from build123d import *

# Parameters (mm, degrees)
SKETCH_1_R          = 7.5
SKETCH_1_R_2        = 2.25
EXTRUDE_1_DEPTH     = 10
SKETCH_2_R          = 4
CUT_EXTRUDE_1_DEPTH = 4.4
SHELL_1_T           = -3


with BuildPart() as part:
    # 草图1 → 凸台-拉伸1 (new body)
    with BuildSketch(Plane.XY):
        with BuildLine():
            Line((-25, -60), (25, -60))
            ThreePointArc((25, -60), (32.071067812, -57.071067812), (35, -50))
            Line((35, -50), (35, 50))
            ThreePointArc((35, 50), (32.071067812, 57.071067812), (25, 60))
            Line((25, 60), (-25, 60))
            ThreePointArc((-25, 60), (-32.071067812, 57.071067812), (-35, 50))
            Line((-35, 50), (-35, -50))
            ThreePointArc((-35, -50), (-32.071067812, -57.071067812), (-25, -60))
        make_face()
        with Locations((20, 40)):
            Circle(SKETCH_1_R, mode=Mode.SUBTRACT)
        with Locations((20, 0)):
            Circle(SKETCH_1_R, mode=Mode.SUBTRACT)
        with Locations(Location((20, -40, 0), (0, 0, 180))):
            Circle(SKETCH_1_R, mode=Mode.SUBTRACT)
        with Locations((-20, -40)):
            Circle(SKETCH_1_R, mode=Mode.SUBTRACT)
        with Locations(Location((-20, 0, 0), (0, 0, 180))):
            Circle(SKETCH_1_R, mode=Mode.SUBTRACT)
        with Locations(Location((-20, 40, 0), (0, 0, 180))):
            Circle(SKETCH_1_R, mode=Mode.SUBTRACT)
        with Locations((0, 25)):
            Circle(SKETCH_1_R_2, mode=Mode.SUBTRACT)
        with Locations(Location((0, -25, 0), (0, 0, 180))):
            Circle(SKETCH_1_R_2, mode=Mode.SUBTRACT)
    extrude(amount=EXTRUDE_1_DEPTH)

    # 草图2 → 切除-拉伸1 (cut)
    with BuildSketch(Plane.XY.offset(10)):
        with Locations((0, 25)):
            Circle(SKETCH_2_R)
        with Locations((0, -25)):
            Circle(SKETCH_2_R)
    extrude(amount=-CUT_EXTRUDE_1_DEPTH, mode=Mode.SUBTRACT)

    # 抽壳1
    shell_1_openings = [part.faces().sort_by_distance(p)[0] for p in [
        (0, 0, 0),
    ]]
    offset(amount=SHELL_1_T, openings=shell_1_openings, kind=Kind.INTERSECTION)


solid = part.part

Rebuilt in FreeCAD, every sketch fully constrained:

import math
import FreeCAD as App
import Part
import Sketcher

V = App.Vector
Q = App.Units.Quantity


def faces_at(feature, points):
    """Names of the faces that lie closest to the given points."""
    faces = feature.Shape.Faces
    near = lambda p: min(range(len(faces)), key=lambda i: faces[i].distToShape(Part.Vertex(*p))[0])
    return sorted({f"Face{near(p) + 1}" for p in points})

doc = App.newDocument("Part")
params = doc.addObject("Spreadsheet::Sheet", "Params")
for row, (alias, value) in enumerate([
    ("sketch1_diameter", "15 mm"),
    ("sketch1_radius", "10 mm"),
    ("sketch1_diameter2", "4.5 mm"),
    ("sketch1_width", "50 mm"),
    ("sketch1_height", "100 mm"),
    ("pad1_length", "10 mm"),
    ("sketch2_diameter", "8 mm"),
    ("pocket1_length", "4.4 mm"),
    ("thickness_wall", "3 mm"),
], start=1):
    params.set(f"A{row}", alias)
    params.set(f"B{row}", "=" + value)
    params.setAlias(f"B{row}", alias)

body = doc.addObject("PartDesign::Body", "Body")

sketch1 = doc.addObject("Sketcher::SketchObject", "Sketch")
body.addObject(sketch1)
sketch1.AttachmentSupport = (doc.XY_Plane, [""])
sketch1.MapMode = "FlatFace"
sketch1.addGeometry([
    Part.LineSegment(V(-25, -60, 0), V(25, -60, 0)),
    Part.ArcOfCircle(Part.Circle(V(25, -50, 0), V(0, 0, 1), 10), math.radians(-90), math.radians(0)),
    Part.LineSegment(V(35, -50, 0), V(35, 50, 0)),
    Part.ArcOfCircle(Part.Circle(V(25, 50, 0), V(0, 0, 1), 10), math.radians(0), math.radians(90)),
    Part.LineSegment(V(25, 60, 0), V(-25, 60, 0)),
    Part.ArcOfCircle(Part.Circle(V(-25, 50, 0), V(0, 0, 1), 10), math.radians(90), math.radians(180)),
    Part.LineSegment(V(-35, 50, 0), V(-35, -50, 0)),
    Part.ArcOfCircle(Part.Circle(V(-25, -50, 0), V(0, 0, 1), 10), math.radians(180), math.radians(270)),
    Part.Circle(V(-20, -40, 0), V(0, 0, 1), 7.5),
    Part.Circle(V(0, -25, 0), V(0, 0, 1), 2.25),
    Part.Circle(V(20, -40, 0), V(0, 0, 1), 7.5),
    Part.Circle(V(-20, 0, 0), V(0, 0, 1), 7.5),
    Part.Circle(V(-20, 40, 0), V(0, 0, 1), 7.5),
    Part.Circle(V(20, 0, 0), V(0, 0, 1), 7.5),
    Part.Circle(V(0, 25, 0), V(0, 0, 1), 2.25),
    Part.Circle(V(20, 40, 0), V(0, 0, 1), 7.5),
], False)
sketch1.addConstraint([
    Sketcher.Constraint("Tangent", 0, 2, 1, 1),
    Sketcher.Constraint("Tangent", 1, 2, 2, 1),
    Sketcher.Constraint("Tangent", 2, 2, 3, 1),
    Sketcher.Constraint("Tangent", 3, 2, 4, 1),
    Sketcher.Constraint("Tangent", 4, 2, 5, 1),
    Sketcher.Constraint("Tangent", 5, 2, 6, 1),
    Sketcher.Constraint("Tangent", 6, 2, 7, 1),
    Sketcher.Constraint("Tangent", 7, 2, 0, 1),
    Sketcher.Constraint("Horizontal", 0),
    Sketcher.Constraint("Vertical", 2),
    Sketcher.Constraint("Horizontal", 4),
    Sketcher.Constraint("Vertical", 6),
    Sketcher.Constraint("Equal", 1, 3),
    Sketcher.Constraint("Equal", 3, 5),
    Sketcher.Constraint("Equal", 5, 7),
    Sketcher.Constraint("Equal", 8, 10),
    Sketcher.Constraint("Equal", 10, 11),
    Sketcher.Constraint("Equal", 11, 12),
    Sketcher.Constraint("Equal", 12, 13),
    Sketcher.Constraint("Equal", 9, 14),
    Sketcher.Constraint("Equal", 13, 15),
    Sketcher.Constraint("Symmetric", 1, 3, 5, 3, -1, 1),
    Sketcher.Constraint("Symmetric", 10, 3, 12, 3, -1, 1),
    Sketcher.Constraint("Symmetric", 11, 3, 13, 3, -1, 1),
    Sketcher.Constraint("Symmetric", 9, 3, 14, 3, -1, 1),
    Sketcher.Constraint("Symmetric", 8, 3, 15, 3, -1, 1),
    Sketcher.Constraint("Symmetric", 8, 3, 10, 3, -2),
    Sketcher.Constraint("PointOnObject", 9, 3, -2),
    Sketcher.Constraint("PointOnObject", 11, 3, -1),
    Sketcher.Constraint("Vertical", 8, 3, 11, 3),
    Sketcher.Constraint("Diameter", 8, Q("15 mm")),
    Sketcher.Constraint("Radius", 1, Q("10 mm")),
    Sketcher.Constraint("Diameter", 9, Q("4.5 mm")),
    Sketcher.Constraint("DistanceX", 0, 1, 0, 2, Q("50 mm")),
    Sketcher.Constraint("DistanceY", 2, 1, 2, 2, Q("100 mm")),
    Sketcher.Constraint("DistanceX", 8, 3, -1, 1, Q("20 mm")),
    Sketcher.Constraint("DistanceY", 8, 3, -1, 1, Q("40 mm")),
    Sketcher.Constraint("DistanceY", 9, 3, -1, 1, Q("25 mm")),
])
sketch1.setExpression("Constraints[30]", "Params.sketch1_diameter")
sketch1.setExpression("Constraints[31]", "Params.sketch1_radius")
sketch1.setExpression("Constraints[32]", "Params.sketch1_diameter2")
sketch1.setExpression("Constraints[33]", "Params.sketch1_width")
sketch1.setExpression("Constraints[34]", "Params.sketch1_height")
pad1 = doc.addObject("PartDesign::Pad", "Pad")
body.addObject(pad1)
pad1.Profile = sketch1
pad1.setExpression("Length", "Params.pad1_length")

sketch2 = doc.addObject("Sketcher::SketchObject", "Sketch001")
body.addObject(sketch2)
sketch2.AttachmentSupport = (doc.XY_Plane, [""])
sketch2.MapMode = "FlatFace"
sketch2.AttachmentOffset = App.Placement(V(0, 0, 10), App.Rotation())
sketch2.addGeometry([
    Part.Circle(V(0, 25, 0), V(0, 0, 1), 4),
    Part.Circle(V(0, -25, 0), V(0, 0, 1), 4),
], False)
sketch2.addConstraint([
    Sketcher.Constraint("Equal", 0, 1),
    Sketcher.Constraint("Symmetric", 0, 3, 1, 3, -1, 1),
    Sketcher.Constraint("PointOnObject", 0, 3, -2),
    Sketcher.Constraint("Diameter", 0, Q("8 mm")),
    Sketcher.Constraint("DistanceY", -1, 1, 0, 3, Q("25 mm")),
])
sketch2.setExpression("Constraints[3]", "Params.sketch2_diameter")
pocket1 = doc.addObject("PartDesign::Pocket", "Pocket")
body.addObject(pocket1)
pocket1.Profile = sketch2
pocket1.setExpression("Length", "Params.pocket1_length")
doc.recompute()

thickness = doc.addObject("PartDesign::Thickness", "Thickness")
body.addObject(thickness)
thickness.Base = (pocket1, faces_at(pocket1, [(0, 0, 0)]))
thickness.setExpression("Value", "Params.thickness_wall")
thickness.Reversed = True
thickness.Join = "Intersection"

doc.recompute()
